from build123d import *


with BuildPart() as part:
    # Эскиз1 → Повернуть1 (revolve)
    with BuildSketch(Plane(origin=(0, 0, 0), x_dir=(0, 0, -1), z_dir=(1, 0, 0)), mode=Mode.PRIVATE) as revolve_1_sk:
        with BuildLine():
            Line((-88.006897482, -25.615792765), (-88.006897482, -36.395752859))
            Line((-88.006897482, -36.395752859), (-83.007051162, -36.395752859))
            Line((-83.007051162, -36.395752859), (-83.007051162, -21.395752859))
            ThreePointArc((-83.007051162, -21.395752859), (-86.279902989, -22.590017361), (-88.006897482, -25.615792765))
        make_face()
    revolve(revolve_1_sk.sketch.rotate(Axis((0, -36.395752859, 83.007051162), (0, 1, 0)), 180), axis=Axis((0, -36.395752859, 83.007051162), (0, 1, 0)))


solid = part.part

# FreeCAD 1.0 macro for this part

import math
import FreeCAD as App
import Part
import Sketcher

doc = App.newDocument("Part")
params = doc.addObject("Spreadsheet::Sheet", "Params")
for row, (alias, value) in enumerate([
    ("sketch1_width", "15 mm"),
    ("revolution_angle", "360 deg"),
], start=1):
    params.set(f"A{row}", alias)
    params.set(f"B{row}", "=" + value)
    params.setAlias(f"B{row}", alias)

body = doc.addObject("PartDesign::Body", "Body")

# Sketch on YZ plane
sketch1 = doc.addObject("Sketcher::SketchObject", "Sketch")
body.addObject(sketch1)
sketch1.AttachmentSupport = (doc.YZ_Plane, [""])
sketch1.MapMode = "FlatFace"
sketch1.addGeometry([
    Part.LineSegment(App.Vector(-25.615793, 88.006897, 0), App.Vector(-36.395753, 88.006897, 0)),
    Part.LineSegment(App.Vector(-36.395753, 88.006897, 0), App.Vector(-36.395753, 83.007051, 0)),
    Part.LineSegment(App.Vector(-36.395753, 83.007051, 0), App.Vector(-21.395753, 83.007051, 0)),
    Part.ArcOfCircle(Part.Circle(App.Vector(-26.460168, 83.013364, 0), App.Vector(0, 0, 1), 5.064419), math.radians(-0.071422), math.radians(80.402424)),
], False)
sketch1.addGeometry(Part.LineSegment(App.Vector(-36.395753, 83.007051, 0), App.Vector(-21.395753, 83.007051, 0)), True)  # axis
sketch1.addConstraint([
    Sketcher.Constraint("Coincident", 0, 2, 1, 1),
    Sketcher.Constraint("Coincident", 1, 2, 2, 1),
    Sketcher.Constraint("Coincident", 2, 2, 3, 1),
    Sketcher.Constraint("Coincident", 3, 2, 0, 1),
    Sketcher.Constraint("Horizontal", 0),
    Sketcher.Constraint("Vertical", 1),
    Sketcher.Constraint("Horizontal", 2),
    Sketcher.Constraint("Horizontal", 4),
    Sketcher.Constraint("Coincident", 4, 1, 1, 2),
    Sketcher.Constraint("Equal", 2, 4),
    Sketcher.Constraint("DistanceX", 2, 1, 2, 2, 15.0),
    Sketcher.Constraint("Radius", 3, 5.064419),
    Sketcher.Constraint("DistanceX", 0, 2, 0, 1, 10.77996),
    Sketcher.Constraint("DistanceY", 1, 2, 1, 1, 4.999846),
    Sketcher.Constraint("DistanceX", 3, 3, -1, 1, 26.460168),
    Sketcher.Constraint("DistanceY", -1, 1, 1, 2, 83.007051),
])
sketch1.setExpression("Constraints[10]", "Params.sketch1_width")
revolution = doc.addObject("PartDesign::Revolution", "Revolution")
body.addObject(revolution)
revolution.Profile = sketch1
revolution.ReferenceAxis = (sketch1, ["Axis0"])
revolution.setExpression("Angle", "Params.revolution_angle")

doc.recompute()
